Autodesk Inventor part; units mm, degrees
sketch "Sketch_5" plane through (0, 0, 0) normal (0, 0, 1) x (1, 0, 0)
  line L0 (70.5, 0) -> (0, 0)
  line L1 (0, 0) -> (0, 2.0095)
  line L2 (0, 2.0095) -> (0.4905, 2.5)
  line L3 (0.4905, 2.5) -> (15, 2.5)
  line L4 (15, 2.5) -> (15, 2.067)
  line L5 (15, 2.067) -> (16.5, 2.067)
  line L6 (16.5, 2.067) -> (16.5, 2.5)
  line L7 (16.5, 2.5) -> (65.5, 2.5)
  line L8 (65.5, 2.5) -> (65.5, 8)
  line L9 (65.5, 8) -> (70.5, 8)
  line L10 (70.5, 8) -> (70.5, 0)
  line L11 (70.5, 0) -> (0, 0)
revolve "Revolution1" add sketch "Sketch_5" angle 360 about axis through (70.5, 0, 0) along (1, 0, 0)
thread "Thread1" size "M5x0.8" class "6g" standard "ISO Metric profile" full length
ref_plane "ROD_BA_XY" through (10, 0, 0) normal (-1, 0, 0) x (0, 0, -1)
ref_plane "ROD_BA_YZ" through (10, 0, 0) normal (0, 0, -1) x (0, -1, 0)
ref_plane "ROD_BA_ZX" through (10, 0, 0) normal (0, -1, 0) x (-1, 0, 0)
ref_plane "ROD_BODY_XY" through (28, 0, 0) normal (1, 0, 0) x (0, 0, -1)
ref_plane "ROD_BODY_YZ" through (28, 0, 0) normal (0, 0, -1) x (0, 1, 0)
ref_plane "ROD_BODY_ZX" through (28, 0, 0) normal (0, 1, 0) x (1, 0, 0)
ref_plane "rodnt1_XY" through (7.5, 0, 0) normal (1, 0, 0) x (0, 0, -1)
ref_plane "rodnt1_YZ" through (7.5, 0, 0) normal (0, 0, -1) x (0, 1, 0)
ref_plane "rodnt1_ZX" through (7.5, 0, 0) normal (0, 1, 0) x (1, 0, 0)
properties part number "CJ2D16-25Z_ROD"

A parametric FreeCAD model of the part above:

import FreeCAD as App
import Part
import Sketcher
Q = App.Units.Quantity


def add_polygon(sketch, points):
    """Adds a closed chain of lines whose ends are joined by coincident constraints."""
    first, n = sketch.GeometryCount, len(points)
    for a, b in zip(points, points[1:] + points[:1]):
        sketch.addGeometry(Part.LineSegment(App.Vector(*a, 0), App.Vector(*b, 0)), False)
    for i in range(n):
        sketch.addConstraint(Sketcher.Constraint("Coincident", first + i, 2, first + (i + 1) % n, 1))

doc = App.newDocument("Part")
body = doc.addObject("PartDesign::Body", "Body")

sketch1 = body.newObject("Sketcher::SketchObject", "Sketch")
sketch1.AttachmentSupport = (doc.getObject("XY_Plane"), [""])
sketch1.MapMode = "FlatFace"
add_polygon(sketch1, [(0, 0), (70.5, 0), (70.5, 8), (65.5, 8), (65.5, 2.5), (16.5, 2.5), (16.5, 2.07), (15, 2.07), (15, 2.5), (0.49, 2.5), (0, 2.01)])
sketch1.addConstraint(Sketcher.Constraint("Horizontal", 0))
sketch1.addConstraint(Sketcher.Constraint("Vertical", 1))
sketch1.addConstraint(Sketcher.Constraint("Horizontal", 2))
sketch1.addConstraint(Sketcher.Constraint("Vertical", 3))
sketch1.addConstraint(Sketcher.Constraint("Horizontal", 4))
sketch1.addConstraint(Sketcher.Constraint("Vertical", 5))
sketch1.addConstraint(Sketcher.Constraint("Horizontal", 6))
sketch1.addConstraint(Sketcher.Constraint("Vertical", 7))
sketch1.addConstraint(Sketcher.Constraint("Horizontal", 8))
sketch1.addConstraint(Sketcher.Constraint("Vertical", 10))
sketch1.addConstraint(Sketcher.Constraint("Coincident", 10, 2, -1, 1))
sketch1.addConstraint(Sketcher.Constraint("Horizontal", 4, 2, 7, 2))
sketch1.addConstraint(Sketcher.Constraint("DistanceX", 2, 2, 2, 1, Q("5 mm")))
sketch1.addConstraint(Sketcher.Constraint("DistanceX", 4, 2, 4, 1, Q("49 mm")))
sketch1.addConstraint(Sketcher.Constraint("DistanceY", 1, 1, 1, 2, Q("8 mm")))
sketch1.addConstraint(Sketcher.Constraint("Angle", 9, Q("-135 deg")))
sketch1.addConstraint(Sketcher.Constraint("DistanceX", 0, 1, 0, 2, Q("70.5 mm")))
sketch1.addConstraint(Sketcher.Constraint("DistanceX", 6, 2, 6, 1, Q("1.5 mm")))
sketch1.addConstraint(Sketcher.Constraint("DistanceY", 3, 2, 3, 1, Q("5.5 mm")))
sketch1.addConstraint(Sketcher.Constraint("DistanceY", 5, 2, 5, 1, Q("0.433 mm")))
sketch1.addConstraint(Sketcher.Constraint("DistanceX", 8, 2, 8, 1, Q("14.5095 mm")))
revolution = body.newObject("PartDesign::Revolution", "Revolution")
revolution.Profile = sketch1
revolution.ReferenceAxis = (sketch1, ["H_Axis"])
revolution.Angle = 360

doc.recompute()
